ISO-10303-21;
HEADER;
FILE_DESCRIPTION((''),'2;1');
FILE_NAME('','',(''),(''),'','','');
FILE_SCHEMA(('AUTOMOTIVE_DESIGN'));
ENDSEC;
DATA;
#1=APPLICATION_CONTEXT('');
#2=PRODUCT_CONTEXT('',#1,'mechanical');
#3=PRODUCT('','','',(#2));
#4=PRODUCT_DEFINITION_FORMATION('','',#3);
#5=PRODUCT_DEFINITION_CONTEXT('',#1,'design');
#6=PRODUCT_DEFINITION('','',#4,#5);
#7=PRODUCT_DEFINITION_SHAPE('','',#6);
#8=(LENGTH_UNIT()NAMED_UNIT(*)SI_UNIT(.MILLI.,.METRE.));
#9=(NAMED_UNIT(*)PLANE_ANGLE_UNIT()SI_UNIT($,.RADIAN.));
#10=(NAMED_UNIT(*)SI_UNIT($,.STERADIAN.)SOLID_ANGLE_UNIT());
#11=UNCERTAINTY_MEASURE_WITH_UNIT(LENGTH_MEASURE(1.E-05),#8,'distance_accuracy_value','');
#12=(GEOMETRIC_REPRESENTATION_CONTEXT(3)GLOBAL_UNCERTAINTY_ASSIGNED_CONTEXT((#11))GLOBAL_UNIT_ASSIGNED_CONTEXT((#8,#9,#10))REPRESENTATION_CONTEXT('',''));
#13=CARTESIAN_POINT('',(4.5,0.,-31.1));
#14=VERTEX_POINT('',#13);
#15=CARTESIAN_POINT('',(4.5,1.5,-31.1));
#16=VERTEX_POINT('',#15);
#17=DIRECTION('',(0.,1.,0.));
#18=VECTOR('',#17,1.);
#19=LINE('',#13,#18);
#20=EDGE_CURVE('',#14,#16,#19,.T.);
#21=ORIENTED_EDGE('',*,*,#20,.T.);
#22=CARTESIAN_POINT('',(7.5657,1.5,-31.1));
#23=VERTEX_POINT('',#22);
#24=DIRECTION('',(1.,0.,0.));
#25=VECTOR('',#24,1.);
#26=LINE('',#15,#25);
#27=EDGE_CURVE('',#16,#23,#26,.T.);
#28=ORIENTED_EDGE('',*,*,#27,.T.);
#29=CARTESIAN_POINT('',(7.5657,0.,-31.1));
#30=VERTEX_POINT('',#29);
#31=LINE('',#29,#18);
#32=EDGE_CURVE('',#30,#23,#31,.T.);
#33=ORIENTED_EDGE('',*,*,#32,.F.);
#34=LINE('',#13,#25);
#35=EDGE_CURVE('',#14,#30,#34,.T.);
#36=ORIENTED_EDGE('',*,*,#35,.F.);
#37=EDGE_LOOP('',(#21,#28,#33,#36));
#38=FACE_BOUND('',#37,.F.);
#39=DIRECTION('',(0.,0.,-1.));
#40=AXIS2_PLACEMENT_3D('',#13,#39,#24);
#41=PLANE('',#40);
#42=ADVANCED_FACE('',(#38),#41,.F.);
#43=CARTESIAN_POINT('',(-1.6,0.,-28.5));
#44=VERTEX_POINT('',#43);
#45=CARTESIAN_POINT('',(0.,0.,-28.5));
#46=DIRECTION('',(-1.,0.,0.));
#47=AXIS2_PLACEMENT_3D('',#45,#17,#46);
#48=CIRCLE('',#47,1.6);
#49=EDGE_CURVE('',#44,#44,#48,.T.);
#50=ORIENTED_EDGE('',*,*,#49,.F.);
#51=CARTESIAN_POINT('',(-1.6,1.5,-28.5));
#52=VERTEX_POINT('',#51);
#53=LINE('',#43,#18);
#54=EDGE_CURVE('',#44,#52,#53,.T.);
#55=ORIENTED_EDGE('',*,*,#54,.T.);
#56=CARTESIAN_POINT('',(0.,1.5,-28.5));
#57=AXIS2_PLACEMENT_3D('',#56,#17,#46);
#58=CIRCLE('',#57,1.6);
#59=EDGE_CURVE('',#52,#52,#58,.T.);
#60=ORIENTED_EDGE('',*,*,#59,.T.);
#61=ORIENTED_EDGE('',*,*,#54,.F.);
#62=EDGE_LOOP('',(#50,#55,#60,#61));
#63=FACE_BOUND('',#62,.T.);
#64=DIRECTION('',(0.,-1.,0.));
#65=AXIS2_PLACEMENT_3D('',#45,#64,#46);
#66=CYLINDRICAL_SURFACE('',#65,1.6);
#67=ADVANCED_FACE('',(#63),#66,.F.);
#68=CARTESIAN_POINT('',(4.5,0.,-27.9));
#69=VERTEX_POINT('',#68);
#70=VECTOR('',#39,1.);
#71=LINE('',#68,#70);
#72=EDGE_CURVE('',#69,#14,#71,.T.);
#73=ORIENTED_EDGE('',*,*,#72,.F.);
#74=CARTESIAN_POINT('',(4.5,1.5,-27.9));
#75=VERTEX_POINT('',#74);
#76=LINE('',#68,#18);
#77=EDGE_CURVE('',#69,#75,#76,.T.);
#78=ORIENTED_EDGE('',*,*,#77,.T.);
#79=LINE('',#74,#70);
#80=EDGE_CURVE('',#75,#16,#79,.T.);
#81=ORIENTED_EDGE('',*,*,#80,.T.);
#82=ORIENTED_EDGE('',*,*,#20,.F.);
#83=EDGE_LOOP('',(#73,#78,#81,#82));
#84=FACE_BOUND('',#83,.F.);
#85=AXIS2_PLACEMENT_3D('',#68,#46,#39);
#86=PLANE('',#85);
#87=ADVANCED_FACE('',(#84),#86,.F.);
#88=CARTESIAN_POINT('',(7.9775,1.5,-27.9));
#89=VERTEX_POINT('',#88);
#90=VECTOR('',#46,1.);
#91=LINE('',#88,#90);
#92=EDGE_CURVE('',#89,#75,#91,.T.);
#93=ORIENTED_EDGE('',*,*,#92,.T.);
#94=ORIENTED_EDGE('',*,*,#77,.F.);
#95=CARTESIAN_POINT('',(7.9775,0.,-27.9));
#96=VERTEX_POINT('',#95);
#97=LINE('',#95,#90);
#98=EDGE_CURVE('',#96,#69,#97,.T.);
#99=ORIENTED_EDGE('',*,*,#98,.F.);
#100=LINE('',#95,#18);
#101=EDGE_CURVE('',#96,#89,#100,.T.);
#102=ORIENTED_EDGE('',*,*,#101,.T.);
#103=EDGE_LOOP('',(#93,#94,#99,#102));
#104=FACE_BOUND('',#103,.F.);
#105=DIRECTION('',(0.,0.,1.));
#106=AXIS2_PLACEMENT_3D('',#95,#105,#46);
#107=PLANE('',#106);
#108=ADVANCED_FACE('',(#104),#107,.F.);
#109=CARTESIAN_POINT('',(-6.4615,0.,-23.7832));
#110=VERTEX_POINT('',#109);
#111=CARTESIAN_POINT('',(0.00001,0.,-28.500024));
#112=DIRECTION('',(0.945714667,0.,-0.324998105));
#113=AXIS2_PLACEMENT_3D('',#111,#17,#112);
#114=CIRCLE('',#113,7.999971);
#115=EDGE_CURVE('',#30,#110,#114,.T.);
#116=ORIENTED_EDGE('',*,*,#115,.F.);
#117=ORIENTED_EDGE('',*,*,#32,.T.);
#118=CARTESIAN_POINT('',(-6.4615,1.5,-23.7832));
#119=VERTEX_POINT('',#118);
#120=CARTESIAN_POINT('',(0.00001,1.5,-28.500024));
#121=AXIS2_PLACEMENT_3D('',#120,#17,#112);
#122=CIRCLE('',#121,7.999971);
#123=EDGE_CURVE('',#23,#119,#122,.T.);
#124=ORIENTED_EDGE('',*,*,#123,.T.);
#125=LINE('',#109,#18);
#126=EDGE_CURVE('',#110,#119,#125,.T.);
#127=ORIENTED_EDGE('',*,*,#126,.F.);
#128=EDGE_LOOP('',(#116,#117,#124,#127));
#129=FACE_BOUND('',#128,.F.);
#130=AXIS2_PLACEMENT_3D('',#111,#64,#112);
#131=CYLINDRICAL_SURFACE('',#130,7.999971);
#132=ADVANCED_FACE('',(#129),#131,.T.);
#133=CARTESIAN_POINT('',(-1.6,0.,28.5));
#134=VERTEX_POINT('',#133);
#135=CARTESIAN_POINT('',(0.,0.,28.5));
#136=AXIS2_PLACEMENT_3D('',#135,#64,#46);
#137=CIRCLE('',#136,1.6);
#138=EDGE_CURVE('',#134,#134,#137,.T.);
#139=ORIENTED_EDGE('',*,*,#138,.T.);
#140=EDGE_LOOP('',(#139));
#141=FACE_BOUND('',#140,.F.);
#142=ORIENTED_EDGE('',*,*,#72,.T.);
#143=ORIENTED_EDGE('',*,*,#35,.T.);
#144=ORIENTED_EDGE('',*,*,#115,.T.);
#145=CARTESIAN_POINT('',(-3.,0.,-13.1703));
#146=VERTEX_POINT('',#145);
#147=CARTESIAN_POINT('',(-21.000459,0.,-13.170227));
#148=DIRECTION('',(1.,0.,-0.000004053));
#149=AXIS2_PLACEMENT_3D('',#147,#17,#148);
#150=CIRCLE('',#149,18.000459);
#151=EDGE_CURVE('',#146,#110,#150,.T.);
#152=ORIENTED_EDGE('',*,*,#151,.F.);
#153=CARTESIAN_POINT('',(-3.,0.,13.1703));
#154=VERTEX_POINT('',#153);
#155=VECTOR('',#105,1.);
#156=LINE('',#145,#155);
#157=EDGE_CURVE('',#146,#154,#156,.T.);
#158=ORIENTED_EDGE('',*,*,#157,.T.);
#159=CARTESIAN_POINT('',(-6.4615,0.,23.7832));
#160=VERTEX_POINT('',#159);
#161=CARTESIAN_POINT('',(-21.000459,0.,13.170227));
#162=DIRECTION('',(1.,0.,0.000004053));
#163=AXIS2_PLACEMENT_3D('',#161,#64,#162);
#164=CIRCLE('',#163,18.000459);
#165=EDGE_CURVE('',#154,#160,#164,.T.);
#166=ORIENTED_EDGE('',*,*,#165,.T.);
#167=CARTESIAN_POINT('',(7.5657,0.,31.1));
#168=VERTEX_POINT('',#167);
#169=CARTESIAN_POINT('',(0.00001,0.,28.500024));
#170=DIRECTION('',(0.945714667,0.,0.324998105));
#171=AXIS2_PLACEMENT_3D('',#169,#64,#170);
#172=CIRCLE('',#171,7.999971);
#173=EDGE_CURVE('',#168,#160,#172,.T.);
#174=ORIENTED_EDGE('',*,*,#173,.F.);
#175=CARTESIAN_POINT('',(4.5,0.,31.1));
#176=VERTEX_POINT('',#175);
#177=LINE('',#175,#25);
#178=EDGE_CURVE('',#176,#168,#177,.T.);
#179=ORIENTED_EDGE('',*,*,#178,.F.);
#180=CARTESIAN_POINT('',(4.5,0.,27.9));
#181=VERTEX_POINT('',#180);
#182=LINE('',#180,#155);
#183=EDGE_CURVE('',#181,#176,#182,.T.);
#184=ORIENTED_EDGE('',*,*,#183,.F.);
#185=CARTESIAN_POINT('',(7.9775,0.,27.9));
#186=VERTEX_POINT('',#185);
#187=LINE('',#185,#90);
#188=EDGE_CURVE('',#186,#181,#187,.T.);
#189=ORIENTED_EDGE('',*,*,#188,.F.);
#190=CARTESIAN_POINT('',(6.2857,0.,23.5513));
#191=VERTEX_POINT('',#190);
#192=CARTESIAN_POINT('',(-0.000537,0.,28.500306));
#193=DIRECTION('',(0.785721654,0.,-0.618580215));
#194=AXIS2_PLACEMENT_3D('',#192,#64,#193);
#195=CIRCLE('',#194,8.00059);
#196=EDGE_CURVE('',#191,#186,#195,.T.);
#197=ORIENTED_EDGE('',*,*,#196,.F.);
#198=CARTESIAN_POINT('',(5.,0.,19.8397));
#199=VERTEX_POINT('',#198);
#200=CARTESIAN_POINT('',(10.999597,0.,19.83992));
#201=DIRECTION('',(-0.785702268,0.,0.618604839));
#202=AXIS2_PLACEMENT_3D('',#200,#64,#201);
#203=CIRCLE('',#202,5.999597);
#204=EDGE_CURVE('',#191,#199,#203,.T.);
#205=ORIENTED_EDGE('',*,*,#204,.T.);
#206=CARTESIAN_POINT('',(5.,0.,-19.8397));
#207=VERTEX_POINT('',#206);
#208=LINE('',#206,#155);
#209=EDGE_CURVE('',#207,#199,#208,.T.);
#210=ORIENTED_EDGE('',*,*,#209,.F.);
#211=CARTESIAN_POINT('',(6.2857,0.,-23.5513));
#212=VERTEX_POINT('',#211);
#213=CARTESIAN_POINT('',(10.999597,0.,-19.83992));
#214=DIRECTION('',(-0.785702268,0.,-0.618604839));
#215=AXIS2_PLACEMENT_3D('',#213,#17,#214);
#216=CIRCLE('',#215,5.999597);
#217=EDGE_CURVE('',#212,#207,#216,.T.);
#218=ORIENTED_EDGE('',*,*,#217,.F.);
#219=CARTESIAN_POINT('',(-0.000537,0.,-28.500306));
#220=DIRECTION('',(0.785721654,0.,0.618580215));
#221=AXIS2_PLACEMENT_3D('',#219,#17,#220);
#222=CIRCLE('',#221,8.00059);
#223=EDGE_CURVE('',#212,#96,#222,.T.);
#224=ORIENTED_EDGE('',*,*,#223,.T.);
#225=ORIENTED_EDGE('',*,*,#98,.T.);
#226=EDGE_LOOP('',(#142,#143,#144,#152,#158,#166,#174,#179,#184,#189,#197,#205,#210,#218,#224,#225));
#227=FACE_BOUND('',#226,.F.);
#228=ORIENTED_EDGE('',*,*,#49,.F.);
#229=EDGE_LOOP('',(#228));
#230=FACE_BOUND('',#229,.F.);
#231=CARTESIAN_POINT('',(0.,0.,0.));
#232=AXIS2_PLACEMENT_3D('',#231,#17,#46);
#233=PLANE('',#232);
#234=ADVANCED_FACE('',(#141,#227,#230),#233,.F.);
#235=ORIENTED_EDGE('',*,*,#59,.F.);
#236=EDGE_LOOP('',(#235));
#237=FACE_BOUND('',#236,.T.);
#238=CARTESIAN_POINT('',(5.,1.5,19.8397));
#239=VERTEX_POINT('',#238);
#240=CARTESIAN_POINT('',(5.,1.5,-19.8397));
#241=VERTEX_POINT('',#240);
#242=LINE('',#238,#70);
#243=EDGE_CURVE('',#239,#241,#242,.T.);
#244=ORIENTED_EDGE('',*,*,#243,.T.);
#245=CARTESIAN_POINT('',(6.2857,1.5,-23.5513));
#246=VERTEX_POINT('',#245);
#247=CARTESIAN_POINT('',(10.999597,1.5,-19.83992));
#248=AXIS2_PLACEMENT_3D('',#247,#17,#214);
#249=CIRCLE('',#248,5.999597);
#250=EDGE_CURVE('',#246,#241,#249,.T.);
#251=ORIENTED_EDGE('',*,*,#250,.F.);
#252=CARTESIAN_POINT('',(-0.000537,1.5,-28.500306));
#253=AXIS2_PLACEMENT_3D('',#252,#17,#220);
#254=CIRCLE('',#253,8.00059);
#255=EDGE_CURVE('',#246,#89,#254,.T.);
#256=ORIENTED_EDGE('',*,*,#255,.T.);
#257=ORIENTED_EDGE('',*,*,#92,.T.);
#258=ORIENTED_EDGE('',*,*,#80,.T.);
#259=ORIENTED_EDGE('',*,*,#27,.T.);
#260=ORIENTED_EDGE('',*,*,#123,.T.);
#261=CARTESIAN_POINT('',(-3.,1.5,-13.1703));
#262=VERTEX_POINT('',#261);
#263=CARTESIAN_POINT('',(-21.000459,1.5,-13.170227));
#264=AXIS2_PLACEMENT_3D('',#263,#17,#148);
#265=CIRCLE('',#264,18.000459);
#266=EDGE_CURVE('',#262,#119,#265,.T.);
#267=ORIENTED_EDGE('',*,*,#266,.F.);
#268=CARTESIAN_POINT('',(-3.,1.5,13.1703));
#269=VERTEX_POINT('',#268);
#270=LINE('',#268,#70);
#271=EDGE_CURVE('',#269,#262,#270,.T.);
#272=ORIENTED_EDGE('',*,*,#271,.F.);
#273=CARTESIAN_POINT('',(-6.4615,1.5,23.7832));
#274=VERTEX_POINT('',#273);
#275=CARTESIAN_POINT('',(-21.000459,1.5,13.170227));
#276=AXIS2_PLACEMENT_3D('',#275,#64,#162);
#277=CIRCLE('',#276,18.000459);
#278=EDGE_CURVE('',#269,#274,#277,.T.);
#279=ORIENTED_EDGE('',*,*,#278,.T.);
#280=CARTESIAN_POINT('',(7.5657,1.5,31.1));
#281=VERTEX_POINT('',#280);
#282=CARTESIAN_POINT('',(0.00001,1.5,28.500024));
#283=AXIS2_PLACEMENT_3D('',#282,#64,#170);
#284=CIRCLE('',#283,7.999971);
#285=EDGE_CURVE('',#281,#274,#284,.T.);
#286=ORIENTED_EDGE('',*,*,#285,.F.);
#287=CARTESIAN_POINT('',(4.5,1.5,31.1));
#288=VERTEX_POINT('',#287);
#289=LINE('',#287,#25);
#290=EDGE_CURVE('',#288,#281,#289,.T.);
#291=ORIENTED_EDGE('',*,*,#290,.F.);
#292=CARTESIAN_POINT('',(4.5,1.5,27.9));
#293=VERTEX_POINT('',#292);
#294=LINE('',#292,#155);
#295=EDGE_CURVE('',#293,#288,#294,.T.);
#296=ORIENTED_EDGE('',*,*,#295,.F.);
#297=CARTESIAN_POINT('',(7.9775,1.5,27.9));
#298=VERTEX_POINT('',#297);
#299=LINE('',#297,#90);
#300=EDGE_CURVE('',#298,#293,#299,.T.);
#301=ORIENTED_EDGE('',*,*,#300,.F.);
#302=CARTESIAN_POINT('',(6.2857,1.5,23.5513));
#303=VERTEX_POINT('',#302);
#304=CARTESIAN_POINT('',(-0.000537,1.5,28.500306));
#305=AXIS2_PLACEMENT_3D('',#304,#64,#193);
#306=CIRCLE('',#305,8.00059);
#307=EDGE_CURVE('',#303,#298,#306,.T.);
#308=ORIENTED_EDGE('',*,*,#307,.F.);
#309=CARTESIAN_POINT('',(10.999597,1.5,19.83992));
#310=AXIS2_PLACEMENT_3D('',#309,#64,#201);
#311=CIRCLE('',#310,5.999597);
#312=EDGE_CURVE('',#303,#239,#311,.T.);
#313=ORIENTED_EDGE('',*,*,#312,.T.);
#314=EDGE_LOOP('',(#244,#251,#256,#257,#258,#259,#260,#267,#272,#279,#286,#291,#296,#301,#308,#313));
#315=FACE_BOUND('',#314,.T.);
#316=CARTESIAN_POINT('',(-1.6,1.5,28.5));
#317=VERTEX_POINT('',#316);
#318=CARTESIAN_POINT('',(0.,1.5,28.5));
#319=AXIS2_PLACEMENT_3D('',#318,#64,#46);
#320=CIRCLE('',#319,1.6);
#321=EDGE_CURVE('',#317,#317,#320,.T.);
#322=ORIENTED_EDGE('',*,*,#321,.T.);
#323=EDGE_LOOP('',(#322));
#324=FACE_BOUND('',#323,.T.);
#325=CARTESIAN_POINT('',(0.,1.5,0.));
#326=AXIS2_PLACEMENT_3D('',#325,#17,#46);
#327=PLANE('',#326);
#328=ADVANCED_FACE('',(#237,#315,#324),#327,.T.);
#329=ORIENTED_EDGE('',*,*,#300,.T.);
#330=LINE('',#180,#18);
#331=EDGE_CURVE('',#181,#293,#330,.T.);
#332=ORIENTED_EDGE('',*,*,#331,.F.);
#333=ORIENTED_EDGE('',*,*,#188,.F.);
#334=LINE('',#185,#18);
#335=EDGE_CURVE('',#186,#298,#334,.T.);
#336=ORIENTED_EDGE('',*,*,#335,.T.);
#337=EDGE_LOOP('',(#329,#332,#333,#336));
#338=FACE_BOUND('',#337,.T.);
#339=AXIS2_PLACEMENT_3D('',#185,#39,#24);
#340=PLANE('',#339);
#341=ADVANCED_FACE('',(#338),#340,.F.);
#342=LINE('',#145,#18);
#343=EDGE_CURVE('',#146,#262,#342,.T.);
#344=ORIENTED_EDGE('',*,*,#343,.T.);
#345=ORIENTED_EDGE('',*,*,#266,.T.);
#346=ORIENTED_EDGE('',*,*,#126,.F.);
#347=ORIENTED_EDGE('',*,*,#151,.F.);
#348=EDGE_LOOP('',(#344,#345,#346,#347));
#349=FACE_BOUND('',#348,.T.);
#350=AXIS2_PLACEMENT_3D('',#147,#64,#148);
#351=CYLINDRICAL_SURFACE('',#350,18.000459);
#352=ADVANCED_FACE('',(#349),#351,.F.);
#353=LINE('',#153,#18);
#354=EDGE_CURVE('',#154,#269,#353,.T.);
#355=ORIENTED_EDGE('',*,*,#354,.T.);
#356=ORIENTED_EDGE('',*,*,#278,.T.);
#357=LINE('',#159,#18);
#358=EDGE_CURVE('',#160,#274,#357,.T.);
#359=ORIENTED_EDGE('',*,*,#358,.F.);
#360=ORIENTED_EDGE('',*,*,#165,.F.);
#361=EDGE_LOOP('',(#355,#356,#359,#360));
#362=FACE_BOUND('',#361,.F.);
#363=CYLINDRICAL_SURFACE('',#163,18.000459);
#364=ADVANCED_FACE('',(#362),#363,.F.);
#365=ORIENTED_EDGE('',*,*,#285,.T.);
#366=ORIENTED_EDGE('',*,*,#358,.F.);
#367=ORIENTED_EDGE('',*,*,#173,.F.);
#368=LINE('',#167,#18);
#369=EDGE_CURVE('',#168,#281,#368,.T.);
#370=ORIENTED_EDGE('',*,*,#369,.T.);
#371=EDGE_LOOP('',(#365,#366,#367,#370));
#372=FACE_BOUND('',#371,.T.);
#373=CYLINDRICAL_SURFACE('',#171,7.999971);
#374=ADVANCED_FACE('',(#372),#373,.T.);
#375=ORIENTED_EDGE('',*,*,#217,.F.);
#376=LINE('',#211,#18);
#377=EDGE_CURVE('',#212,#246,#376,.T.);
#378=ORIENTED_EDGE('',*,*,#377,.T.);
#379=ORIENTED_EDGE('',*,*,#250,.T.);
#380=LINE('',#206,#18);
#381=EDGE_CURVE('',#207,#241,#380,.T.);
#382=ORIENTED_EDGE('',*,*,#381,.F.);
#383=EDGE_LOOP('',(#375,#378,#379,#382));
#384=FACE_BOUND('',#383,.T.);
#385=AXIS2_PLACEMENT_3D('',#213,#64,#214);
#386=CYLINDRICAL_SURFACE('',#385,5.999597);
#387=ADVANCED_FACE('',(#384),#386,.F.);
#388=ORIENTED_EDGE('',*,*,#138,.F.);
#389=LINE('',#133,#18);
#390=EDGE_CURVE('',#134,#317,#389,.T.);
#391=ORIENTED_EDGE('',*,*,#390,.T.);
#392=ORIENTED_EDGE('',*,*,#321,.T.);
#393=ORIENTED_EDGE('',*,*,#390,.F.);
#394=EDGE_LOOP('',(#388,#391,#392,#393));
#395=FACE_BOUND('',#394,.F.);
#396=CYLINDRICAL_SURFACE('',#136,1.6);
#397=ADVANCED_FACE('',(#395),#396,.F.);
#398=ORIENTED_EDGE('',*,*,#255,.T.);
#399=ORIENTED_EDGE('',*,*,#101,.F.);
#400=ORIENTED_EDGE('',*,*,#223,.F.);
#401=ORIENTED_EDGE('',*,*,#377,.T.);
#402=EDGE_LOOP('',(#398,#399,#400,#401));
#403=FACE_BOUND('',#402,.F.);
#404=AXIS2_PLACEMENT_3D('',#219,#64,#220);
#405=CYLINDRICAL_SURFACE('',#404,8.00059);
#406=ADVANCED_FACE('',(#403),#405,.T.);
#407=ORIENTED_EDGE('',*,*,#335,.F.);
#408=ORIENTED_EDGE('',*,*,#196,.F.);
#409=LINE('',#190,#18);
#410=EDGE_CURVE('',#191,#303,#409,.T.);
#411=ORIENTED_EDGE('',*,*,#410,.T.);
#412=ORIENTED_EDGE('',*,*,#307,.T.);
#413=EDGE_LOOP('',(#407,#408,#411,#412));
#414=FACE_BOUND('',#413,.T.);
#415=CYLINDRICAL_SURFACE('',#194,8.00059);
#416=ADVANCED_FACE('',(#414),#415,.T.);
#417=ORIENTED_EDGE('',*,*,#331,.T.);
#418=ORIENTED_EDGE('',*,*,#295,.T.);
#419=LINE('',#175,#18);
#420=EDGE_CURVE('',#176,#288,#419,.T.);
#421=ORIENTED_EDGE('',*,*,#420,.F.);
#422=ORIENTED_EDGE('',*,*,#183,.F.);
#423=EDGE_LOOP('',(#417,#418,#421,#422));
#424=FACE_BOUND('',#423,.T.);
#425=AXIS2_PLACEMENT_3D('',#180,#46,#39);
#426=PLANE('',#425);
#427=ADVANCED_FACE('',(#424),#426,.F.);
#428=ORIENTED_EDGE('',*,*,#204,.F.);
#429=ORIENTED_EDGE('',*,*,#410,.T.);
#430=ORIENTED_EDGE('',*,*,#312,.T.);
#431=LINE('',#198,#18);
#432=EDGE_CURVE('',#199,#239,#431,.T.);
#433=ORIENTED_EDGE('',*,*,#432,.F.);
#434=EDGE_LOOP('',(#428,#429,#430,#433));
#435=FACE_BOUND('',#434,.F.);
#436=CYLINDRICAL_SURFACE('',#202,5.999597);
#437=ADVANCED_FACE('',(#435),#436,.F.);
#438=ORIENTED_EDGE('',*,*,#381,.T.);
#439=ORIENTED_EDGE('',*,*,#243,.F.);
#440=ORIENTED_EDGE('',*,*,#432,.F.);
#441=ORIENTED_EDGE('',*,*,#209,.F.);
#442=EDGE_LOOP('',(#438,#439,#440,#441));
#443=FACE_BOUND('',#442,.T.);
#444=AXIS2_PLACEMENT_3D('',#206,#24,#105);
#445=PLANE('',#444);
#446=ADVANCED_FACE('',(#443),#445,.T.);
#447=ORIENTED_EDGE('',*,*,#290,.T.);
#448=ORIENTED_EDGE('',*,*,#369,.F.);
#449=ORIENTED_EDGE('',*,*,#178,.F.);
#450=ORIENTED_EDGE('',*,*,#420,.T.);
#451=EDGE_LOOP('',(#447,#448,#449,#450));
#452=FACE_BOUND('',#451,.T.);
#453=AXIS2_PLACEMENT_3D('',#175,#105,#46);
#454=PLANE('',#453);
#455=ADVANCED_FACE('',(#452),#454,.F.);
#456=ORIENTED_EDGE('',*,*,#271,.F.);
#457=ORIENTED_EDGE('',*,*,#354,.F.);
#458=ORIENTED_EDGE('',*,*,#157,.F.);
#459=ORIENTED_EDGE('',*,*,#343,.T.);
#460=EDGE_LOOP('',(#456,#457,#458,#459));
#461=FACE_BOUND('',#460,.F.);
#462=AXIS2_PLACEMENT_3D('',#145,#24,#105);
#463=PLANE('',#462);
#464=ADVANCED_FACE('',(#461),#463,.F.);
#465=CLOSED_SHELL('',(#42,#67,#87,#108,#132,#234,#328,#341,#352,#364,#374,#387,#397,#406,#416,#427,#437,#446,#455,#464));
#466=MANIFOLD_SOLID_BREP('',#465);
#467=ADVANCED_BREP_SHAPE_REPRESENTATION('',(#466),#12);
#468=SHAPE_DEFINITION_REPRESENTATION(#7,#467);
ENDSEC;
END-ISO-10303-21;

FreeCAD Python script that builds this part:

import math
import FreeCAD as App
import Part
import Sketcher

V = App.Vector

doc = App.newDocument("Part")
body = doc.addObject("PartDesign::Body", "Body")

sketch1 = body.newObject("Sketcher::SketchObject", "Sketch")
sketch1.AttachmentSupport = (doc.getObject("XZ_Plane"), [""])
sketch1.MapMode = "FlatFace"
sketch1.addGeometry(Part.ArcOfCircle(Part.Circle(V(-21, -13.2, 0), V(0, 0, 1), 18), math.radians(-36), math.radians(0)), False)
sketch1.addGeometry(Part.LineSegment(V(-3, -13.2, 0), V(-3, 0, 0)), False)
sketch1.addGeometry(Part.LineSegment(V(-3, 0, 0), V(5, 0, 0)), False)
sketch1.addGeometry(Part.LineSegment(V(5, 0, 0), V(5, -19.8, 0)), False)
sketch1.addGeometry(Part.ArcOfCircle(Part.Circle(V(11, -19.8, 0), V(0, 0, 1), 6), math.radians(180), math.radians(218)), False)
sketch1.addGeometry(Part.ArcOfCircle(Part.Circle(V(0, -28.5, 0), V(0, 0, 1), 8), math.radians(4), math.radians(38)), False)
sketch1.addGeometry(Part.LineSegment(V(8, -27.9, 0), V(4.5, -27.9, 0)), False)
sketch1.addGeometry(Part.LineSegment(V(4.5, -27.9, 0), V(4.5, -31.1, 0)), False)
sketch1.addGeometry(Part.LineSegment(V(4.5, -31.1, 0), V(7.6, -31.1, 0)), False)
sketch1.addGeometry(Part.ArcOfCircle(Part.Circle(V(0, -28.5, 0), V(0, 0, 1), 8), math.radians(144), math.radians(341)), False)
sketch1.addGeometry(Part.Circle(V(0, -28.5, 0), V(0, 0, 1), 1.6), False)
sketch1.addConstraint(Sketcher.Constraint("Tangent", 0, 2, 1, 1))
sketch1.addConstraint(Sketcher.Constraint("Coincident", 1, 2, 2, 1))
sketch1.addConstraint(Sketcher.Constraint("Coincident", 2, 2, 3, 1))
sketch1.addConstraint(Sketcher.Constraint("Tangent", 3, 2, 4, 1))
sketch1.addConstraint(Sketcher.Constraint("Tangent", 4, 2, 5, 2))
sketch1.addConstraint(Sketcher.Constraint("Coincident", 5, 1, 6, 1))
sketch1.addConstraint(Sketcher.Constraint("Coincident", 6, 2, 7, 1))
sketch1.addConstraint(Sketcher.Constraint("Coincident", 7, 2, 8, 1))
sketch1.addConstraint(Sketcher.Constraint("Coincident", 8, 2, 9, 2))
sketch1.addConstraint(Sketcher.Constraint("Tangent", 9, 1, 0, 1))
sketch1.addConstraint(Sketcher.Constraint("Vertical", 1))
sketch1.addConstraint(Sketcher.Constraint("Horizontal", 2))
sketch1.addConstraint(Sketcher.Constraint("Vertical", 3))
sketch1.addConstraint(Sketcher.Constraint("Horizontal", 6))
sketch1.addConstraint(Sketcher.Constraint("Vertical", 7))
sketch1.addConstraint(Sketcher.Constraint("Horizontal", 8))
sketch1.addConstraint(Sketcher.Constraint("Coincident", 9, 3, 5, 3))
sketch1.addConstraint(Sketcher.Constraint("Coincident", 10, 3, 5, 3))
sketch1.addConstraint(Sketcher.Constraint("Equal", 5, 9))
sketch1.addConstraint(Sketcher.Constraint("PointOnObject", 5, 3, -2))
sketch1.addConstraint(Sketcher.Constraint("PointOnObject", 1, 2, -1))
sketch1.addConstraint(Sketcher.Constraint("Radius", 0, 18.0))
sketch1.addConstraint(Sketcher.Constraint("Radius", 4, 6.0))
sketch1.addConstraint(Sketcher.Constraint("Radius", 5, 8.0))
sketch1.addConstraint(Sketcher.Constraint("Diameter", 10, 3.2))
sketch1.addConstraint(Sketcher.Constraint("DistanceX", 2, 1, 2, 2, 8.0))
sketch1.addConstraint(Sketcher.Constraint("DistanceY", 7, 2, 7, 1, 3.2))
sketch1.addConstraint(Sketcher.Constraint("DistanceX", 0, 2, -1, 1, 3.0))
sketch1.addConstraint(Sketcher.Constraint("DistanceX", -1, 1, 6, 2, 4.5))
sketch1.addConstraint(Sketcher.Constraint("DistanceY", 5, 3, 5, 1, 0.6))
sketch1.addConstraint(Sketcher.Constraint("DistanceY", 5, 3, -1, 1, 28.5))
pad1 = body.newObject("PartDesign::Pad", "Pad")
pad1.Profile = sketch1
pad1.Length = 1.5
pad1.Reversed = True
doc.recompute()

mirrored = body.newObject("PartDesign::Mirrored", "Mirrored")
mirrored.Originals = [pad1]
mirrored.MirrorPlane = (doc.getObject("XY_Plane"), [""])
body.Tip = mirrored

doc.recompute()
